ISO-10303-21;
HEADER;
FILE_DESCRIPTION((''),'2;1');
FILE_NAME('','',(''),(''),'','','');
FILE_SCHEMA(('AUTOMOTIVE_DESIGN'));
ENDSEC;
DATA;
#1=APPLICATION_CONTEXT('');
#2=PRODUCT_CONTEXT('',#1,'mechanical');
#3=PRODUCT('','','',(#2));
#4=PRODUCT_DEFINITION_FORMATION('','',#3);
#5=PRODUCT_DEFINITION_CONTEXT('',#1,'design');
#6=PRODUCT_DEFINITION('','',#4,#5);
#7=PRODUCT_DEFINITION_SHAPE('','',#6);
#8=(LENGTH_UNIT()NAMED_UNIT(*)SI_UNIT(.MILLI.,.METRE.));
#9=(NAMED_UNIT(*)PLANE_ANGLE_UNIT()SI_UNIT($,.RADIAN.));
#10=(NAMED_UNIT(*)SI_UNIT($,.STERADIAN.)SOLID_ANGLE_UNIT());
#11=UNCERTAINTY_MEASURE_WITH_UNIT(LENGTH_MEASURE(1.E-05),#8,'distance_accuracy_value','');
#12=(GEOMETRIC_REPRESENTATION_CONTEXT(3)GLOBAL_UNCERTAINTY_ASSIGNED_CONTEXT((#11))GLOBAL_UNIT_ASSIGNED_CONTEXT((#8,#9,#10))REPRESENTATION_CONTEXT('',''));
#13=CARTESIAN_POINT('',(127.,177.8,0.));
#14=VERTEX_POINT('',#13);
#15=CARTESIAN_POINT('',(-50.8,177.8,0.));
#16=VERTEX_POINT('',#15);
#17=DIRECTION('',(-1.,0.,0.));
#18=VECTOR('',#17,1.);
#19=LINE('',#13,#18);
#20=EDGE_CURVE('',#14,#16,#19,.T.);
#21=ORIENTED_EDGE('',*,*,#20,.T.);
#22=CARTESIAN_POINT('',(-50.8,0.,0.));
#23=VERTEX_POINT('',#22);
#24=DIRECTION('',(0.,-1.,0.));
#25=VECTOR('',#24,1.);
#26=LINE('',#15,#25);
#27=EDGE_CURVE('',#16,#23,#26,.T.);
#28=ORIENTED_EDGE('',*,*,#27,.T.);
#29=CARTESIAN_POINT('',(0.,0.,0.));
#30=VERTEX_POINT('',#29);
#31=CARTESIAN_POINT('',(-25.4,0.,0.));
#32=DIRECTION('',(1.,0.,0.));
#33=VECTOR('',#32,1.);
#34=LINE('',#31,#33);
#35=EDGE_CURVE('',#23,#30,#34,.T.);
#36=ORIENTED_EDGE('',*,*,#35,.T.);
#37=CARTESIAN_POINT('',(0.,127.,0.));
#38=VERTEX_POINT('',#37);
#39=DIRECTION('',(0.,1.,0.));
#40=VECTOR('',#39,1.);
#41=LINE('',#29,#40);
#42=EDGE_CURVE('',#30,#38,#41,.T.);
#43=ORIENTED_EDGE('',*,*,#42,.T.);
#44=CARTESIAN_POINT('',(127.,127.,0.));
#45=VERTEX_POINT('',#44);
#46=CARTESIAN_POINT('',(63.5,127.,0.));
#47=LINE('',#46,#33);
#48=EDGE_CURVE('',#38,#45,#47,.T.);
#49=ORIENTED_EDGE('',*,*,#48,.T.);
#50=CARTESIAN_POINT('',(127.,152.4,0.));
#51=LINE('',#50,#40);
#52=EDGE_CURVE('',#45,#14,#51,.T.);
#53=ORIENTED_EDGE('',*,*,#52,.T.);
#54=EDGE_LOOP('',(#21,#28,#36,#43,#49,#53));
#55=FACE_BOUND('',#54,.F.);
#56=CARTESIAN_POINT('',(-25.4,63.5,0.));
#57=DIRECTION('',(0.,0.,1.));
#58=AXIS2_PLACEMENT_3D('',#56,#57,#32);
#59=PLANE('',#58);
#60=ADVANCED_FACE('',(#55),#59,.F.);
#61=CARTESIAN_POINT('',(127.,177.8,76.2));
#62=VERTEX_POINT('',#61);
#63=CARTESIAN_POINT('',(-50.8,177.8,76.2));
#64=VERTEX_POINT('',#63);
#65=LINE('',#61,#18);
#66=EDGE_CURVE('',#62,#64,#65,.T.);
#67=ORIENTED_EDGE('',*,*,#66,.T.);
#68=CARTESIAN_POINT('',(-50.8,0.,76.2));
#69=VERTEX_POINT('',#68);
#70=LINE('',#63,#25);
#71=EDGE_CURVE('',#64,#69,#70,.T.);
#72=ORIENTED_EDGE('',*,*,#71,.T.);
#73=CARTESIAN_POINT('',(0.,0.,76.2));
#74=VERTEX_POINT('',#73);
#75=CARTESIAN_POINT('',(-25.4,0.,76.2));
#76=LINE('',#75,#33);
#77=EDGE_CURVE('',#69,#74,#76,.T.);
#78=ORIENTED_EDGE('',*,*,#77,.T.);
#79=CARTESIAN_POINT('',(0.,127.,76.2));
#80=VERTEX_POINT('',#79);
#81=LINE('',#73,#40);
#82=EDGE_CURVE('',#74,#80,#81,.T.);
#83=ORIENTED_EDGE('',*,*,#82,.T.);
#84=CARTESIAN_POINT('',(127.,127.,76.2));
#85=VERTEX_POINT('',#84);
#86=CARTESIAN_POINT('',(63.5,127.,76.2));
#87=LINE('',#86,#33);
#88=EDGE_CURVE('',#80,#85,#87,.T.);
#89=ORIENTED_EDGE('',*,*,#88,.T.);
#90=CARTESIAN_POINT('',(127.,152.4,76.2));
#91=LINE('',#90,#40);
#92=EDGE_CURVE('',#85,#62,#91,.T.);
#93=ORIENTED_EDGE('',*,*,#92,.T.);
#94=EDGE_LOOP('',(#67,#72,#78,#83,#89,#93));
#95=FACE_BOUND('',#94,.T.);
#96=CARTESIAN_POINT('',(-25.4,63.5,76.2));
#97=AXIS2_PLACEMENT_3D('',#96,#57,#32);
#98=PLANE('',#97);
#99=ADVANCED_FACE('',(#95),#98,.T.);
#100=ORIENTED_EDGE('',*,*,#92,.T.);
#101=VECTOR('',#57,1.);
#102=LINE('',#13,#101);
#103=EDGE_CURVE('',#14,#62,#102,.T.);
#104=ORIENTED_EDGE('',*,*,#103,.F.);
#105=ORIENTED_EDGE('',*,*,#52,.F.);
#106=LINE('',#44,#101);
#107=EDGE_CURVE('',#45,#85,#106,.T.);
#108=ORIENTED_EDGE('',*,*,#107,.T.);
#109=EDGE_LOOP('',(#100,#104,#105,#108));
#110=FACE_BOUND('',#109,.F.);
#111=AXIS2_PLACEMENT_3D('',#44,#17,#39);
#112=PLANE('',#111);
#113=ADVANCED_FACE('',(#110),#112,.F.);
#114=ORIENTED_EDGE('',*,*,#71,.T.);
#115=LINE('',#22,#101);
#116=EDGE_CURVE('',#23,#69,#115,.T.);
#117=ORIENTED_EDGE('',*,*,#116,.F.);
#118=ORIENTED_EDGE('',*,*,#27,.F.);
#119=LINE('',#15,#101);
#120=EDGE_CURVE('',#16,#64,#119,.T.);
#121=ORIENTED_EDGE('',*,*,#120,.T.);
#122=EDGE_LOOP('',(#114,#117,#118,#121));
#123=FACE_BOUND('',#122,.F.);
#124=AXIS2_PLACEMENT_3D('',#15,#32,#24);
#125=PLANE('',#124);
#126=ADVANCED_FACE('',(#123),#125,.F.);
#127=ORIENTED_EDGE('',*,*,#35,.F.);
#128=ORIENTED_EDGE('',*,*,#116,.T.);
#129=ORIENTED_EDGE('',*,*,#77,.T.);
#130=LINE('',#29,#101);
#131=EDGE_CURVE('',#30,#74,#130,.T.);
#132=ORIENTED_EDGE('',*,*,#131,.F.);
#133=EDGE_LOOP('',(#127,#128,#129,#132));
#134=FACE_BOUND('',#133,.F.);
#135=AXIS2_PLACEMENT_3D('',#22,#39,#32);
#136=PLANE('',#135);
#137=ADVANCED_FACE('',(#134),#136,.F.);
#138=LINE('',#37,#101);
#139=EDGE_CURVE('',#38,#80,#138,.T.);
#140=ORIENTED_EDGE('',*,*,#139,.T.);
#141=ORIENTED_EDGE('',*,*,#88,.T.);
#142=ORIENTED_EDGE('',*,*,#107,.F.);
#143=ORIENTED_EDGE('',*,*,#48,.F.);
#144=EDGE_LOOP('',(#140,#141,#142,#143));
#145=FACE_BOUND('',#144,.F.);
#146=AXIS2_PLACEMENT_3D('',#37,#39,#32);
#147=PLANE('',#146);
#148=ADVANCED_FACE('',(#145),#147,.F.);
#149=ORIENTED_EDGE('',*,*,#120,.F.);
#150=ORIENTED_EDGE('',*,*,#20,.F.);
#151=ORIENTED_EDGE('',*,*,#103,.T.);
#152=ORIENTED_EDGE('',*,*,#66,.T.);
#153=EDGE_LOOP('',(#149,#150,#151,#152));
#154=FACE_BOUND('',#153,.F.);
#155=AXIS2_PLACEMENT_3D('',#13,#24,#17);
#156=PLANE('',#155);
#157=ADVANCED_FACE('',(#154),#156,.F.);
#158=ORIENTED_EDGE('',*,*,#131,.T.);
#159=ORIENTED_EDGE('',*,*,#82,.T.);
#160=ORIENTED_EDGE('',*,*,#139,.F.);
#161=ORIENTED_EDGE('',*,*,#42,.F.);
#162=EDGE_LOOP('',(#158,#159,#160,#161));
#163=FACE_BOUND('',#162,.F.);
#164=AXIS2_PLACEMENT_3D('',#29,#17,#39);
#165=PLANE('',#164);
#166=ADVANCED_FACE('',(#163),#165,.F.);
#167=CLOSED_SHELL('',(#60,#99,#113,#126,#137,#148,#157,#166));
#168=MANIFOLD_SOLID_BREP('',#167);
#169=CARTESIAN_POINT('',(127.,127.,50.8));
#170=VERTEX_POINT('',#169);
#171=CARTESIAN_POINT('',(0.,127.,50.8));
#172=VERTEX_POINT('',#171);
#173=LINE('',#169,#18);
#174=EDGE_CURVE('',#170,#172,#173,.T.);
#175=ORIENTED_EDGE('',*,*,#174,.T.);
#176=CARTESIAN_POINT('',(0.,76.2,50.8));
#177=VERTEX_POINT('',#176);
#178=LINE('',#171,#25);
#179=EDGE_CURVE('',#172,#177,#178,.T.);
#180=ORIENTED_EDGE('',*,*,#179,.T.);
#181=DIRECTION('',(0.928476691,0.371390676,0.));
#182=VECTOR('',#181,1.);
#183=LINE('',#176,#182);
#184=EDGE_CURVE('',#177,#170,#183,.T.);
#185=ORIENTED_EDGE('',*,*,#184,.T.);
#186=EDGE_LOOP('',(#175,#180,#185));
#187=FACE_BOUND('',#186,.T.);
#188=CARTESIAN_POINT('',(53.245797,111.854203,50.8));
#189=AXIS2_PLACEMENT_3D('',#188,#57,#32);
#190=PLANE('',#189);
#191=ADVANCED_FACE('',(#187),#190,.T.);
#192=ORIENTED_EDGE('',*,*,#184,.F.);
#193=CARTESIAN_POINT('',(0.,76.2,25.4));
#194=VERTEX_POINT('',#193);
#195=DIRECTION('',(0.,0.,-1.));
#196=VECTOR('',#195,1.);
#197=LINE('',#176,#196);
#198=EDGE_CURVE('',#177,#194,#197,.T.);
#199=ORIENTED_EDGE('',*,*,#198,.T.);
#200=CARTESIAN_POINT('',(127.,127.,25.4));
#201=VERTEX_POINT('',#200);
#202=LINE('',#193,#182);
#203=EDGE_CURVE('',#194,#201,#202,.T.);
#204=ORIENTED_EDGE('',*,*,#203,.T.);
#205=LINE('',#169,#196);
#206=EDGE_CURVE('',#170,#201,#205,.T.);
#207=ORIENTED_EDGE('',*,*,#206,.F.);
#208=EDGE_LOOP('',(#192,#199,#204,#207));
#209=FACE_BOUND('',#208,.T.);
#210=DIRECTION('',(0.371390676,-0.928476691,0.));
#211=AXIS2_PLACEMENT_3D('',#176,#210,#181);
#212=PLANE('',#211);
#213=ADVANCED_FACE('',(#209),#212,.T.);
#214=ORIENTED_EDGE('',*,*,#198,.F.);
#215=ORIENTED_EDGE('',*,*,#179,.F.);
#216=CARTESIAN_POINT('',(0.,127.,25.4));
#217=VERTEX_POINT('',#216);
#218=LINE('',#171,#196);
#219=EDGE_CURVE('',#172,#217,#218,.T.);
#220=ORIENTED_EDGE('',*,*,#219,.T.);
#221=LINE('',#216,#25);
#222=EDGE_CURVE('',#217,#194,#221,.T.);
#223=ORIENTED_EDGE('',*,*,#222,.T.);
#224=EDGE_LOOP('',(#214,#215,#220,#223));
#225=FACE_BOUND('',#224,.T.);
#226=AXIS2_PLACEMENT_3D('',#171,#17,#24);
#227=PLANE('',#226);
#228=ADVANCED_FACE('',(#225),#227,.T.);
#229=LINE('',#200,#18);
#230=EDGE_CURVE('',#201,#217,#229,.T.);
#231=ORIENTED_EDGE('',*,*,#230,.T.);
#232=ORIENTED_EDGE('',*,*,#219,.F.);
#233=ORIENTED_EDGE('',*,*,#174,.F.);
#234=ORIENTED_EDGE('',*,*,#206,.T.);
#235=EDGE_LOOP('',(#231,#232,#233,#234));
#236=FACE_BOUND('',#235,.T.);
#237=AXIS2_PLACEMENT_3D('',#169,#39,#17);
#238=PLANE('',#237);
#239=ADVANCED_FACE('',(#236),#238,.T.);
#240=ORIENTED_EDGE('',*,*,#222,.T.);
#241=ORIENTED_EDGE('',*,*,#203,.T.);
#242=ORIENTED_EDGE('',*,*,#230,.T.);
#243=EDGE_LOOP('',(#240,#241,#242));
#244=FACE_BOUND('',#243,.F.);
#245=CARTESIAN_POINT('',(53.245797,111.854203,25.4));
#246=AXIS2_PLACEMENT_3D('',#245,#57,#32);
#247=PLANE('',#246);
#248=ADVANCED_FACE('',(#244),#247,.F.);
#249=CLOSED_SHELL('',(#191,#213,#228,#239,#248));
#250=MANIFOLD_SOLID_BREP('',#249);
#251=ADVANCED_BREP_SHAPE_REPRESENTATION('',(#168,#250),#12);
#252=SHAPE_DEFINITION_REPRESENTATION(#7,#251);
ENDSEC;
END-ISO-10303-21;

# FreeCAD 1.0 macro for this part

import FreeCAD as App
import Part
import Sketcher

V = App.Vector
Q = App.Units.Quantity


def add_polygon(sketch, points):
    """Adds a closed chain of lines whose ends are joined by coincident constraints."""
    first, n = sketch.GeometryCount, len(points)
    for a, b in zip(points, points[1:] + points[:1]):
        sketch.addGeometry(Part.LineSegment(App.Vector(*a, 0), App.Vector(*b, 0)), False)
    for i in range(n):
        sketch.addConstraint(Sketcher.Constraint("Coincident", first + i, 2, first + (i + 1) % n, 1))

doc = App.newDocument("Part")
params = doc.addObject("Spreadsheet::Sheet", "Params")
for row, (alias, value) in enumerate([
    ("sketch1_width", "2 in"),
    ("sketch1_width2", "5 in"),
    ("pad1_length", "3 in"),
    ("sketch2_width", "5 in"),
    ("sketch2_height", "2 in"),
    ("pad2_length", "1 in"),
], start=1):
    params.set(f"A{row}", alias)
    params.set(f"B{row}", "=" + value)
    params.setAlias(f"B{row}", alias)

body = doc.addObject("PartDesign::Body", "Body")

# Sketch on XY plane
sketch1 = body.newObject("Sketcher::SketchObject", "Sketch")
sketch1.AttachmentSupport = (doc.getObject("XY_Plane"), [""])
sketch1.MapMode = "FlatFace"
add_polygon(sketch1, [(-51, 0), (0, 0), (0, 127), (127, 127), (127, 178), (-51, 178)])  # lines 0-5
sketch1.addConstraint([
    Sketcher.Constraint("Horizontal", 0),
    Sketcher.Constraint("Vertical", 1),
    Sketcher.Constraint("Horizontal", 2),
    Sketcher.Constraint("Vertical", 3),
    Sketcher.Constraint("Horizontal", 4),
    Sketcher.Constraint("Vertical", 5),
    Sketcher.Constraint("Coincident", 0, 2, -1, 1),
    Sketcher.Constraint("Equal", 2, 1),
    Sketcher.Constraint("Equal", 0, 3),
    Sketcher.Constraint("DistanceX", 0, 1, 0, 2, Q("2 in")),
    Sketcher.Constraint("DistanceX", 2, 1, 2, 2, Q("5 in")),
])
sketch1.setExpression("Constraints[15]", "Params.sketch1_width")
sketch1.setExpression("Constraints[16]", "Params.sketch1_width2")
pad1 = body.newObject("PartDesign::Pad", "Pad")
pad1.Profile = sketch1
pad1.setExpression("Length", "Params.pad1_length")
body2 = doc.addObject("PartDesign::Body", "Body001")

# Sketch on XY plane
sketch2 = body2.newObject("Sketcher::SketchObject", "Sketch001")
sketch2.AttachmentSupport = (doc.getObject("XY_Plane001"), [""])
sketch2.MapMode = "FlatFace"
sketch2.AttachmentOffset = App.Placement(V(0, 0, 2 * 25.4), App.Rotation())
add_polygon(sketch2, [(127, 127), (0, 127), (0, 76)])  # lines 0-2
sketch2.addConstraint([
    Sketcher.Constraint("Horizontal", 0),
    Sketcher.Constraint("Vertical", 1),
    Sketcher.Constraint("PointOnObject", 0, 2, -2),
    Sketcher.Constraint("DistanceX", 0, 2, 0, 1, Q("5 in")),
    Sketcher.Constraint("DistanceY", 1, 2, 1, 1, Q("2 in")),
    Sketcher.Constraint("DistanceY", -1, 1, 0, 2, Q("5 in")),
])
sketch2.setExpression("Constraints[6]", "Params.sketch2_width")
sketch2.setExpression("Constraints[7]", "Params.sketch2_height")
pad2 = body2.newObject("PartDesign::Pad", "Pad001")
pad2.Profile = sketch2
pad2.setExpression("Length", "Params.pad2_length")
pad2.Reversed = True

doc.recompute()
